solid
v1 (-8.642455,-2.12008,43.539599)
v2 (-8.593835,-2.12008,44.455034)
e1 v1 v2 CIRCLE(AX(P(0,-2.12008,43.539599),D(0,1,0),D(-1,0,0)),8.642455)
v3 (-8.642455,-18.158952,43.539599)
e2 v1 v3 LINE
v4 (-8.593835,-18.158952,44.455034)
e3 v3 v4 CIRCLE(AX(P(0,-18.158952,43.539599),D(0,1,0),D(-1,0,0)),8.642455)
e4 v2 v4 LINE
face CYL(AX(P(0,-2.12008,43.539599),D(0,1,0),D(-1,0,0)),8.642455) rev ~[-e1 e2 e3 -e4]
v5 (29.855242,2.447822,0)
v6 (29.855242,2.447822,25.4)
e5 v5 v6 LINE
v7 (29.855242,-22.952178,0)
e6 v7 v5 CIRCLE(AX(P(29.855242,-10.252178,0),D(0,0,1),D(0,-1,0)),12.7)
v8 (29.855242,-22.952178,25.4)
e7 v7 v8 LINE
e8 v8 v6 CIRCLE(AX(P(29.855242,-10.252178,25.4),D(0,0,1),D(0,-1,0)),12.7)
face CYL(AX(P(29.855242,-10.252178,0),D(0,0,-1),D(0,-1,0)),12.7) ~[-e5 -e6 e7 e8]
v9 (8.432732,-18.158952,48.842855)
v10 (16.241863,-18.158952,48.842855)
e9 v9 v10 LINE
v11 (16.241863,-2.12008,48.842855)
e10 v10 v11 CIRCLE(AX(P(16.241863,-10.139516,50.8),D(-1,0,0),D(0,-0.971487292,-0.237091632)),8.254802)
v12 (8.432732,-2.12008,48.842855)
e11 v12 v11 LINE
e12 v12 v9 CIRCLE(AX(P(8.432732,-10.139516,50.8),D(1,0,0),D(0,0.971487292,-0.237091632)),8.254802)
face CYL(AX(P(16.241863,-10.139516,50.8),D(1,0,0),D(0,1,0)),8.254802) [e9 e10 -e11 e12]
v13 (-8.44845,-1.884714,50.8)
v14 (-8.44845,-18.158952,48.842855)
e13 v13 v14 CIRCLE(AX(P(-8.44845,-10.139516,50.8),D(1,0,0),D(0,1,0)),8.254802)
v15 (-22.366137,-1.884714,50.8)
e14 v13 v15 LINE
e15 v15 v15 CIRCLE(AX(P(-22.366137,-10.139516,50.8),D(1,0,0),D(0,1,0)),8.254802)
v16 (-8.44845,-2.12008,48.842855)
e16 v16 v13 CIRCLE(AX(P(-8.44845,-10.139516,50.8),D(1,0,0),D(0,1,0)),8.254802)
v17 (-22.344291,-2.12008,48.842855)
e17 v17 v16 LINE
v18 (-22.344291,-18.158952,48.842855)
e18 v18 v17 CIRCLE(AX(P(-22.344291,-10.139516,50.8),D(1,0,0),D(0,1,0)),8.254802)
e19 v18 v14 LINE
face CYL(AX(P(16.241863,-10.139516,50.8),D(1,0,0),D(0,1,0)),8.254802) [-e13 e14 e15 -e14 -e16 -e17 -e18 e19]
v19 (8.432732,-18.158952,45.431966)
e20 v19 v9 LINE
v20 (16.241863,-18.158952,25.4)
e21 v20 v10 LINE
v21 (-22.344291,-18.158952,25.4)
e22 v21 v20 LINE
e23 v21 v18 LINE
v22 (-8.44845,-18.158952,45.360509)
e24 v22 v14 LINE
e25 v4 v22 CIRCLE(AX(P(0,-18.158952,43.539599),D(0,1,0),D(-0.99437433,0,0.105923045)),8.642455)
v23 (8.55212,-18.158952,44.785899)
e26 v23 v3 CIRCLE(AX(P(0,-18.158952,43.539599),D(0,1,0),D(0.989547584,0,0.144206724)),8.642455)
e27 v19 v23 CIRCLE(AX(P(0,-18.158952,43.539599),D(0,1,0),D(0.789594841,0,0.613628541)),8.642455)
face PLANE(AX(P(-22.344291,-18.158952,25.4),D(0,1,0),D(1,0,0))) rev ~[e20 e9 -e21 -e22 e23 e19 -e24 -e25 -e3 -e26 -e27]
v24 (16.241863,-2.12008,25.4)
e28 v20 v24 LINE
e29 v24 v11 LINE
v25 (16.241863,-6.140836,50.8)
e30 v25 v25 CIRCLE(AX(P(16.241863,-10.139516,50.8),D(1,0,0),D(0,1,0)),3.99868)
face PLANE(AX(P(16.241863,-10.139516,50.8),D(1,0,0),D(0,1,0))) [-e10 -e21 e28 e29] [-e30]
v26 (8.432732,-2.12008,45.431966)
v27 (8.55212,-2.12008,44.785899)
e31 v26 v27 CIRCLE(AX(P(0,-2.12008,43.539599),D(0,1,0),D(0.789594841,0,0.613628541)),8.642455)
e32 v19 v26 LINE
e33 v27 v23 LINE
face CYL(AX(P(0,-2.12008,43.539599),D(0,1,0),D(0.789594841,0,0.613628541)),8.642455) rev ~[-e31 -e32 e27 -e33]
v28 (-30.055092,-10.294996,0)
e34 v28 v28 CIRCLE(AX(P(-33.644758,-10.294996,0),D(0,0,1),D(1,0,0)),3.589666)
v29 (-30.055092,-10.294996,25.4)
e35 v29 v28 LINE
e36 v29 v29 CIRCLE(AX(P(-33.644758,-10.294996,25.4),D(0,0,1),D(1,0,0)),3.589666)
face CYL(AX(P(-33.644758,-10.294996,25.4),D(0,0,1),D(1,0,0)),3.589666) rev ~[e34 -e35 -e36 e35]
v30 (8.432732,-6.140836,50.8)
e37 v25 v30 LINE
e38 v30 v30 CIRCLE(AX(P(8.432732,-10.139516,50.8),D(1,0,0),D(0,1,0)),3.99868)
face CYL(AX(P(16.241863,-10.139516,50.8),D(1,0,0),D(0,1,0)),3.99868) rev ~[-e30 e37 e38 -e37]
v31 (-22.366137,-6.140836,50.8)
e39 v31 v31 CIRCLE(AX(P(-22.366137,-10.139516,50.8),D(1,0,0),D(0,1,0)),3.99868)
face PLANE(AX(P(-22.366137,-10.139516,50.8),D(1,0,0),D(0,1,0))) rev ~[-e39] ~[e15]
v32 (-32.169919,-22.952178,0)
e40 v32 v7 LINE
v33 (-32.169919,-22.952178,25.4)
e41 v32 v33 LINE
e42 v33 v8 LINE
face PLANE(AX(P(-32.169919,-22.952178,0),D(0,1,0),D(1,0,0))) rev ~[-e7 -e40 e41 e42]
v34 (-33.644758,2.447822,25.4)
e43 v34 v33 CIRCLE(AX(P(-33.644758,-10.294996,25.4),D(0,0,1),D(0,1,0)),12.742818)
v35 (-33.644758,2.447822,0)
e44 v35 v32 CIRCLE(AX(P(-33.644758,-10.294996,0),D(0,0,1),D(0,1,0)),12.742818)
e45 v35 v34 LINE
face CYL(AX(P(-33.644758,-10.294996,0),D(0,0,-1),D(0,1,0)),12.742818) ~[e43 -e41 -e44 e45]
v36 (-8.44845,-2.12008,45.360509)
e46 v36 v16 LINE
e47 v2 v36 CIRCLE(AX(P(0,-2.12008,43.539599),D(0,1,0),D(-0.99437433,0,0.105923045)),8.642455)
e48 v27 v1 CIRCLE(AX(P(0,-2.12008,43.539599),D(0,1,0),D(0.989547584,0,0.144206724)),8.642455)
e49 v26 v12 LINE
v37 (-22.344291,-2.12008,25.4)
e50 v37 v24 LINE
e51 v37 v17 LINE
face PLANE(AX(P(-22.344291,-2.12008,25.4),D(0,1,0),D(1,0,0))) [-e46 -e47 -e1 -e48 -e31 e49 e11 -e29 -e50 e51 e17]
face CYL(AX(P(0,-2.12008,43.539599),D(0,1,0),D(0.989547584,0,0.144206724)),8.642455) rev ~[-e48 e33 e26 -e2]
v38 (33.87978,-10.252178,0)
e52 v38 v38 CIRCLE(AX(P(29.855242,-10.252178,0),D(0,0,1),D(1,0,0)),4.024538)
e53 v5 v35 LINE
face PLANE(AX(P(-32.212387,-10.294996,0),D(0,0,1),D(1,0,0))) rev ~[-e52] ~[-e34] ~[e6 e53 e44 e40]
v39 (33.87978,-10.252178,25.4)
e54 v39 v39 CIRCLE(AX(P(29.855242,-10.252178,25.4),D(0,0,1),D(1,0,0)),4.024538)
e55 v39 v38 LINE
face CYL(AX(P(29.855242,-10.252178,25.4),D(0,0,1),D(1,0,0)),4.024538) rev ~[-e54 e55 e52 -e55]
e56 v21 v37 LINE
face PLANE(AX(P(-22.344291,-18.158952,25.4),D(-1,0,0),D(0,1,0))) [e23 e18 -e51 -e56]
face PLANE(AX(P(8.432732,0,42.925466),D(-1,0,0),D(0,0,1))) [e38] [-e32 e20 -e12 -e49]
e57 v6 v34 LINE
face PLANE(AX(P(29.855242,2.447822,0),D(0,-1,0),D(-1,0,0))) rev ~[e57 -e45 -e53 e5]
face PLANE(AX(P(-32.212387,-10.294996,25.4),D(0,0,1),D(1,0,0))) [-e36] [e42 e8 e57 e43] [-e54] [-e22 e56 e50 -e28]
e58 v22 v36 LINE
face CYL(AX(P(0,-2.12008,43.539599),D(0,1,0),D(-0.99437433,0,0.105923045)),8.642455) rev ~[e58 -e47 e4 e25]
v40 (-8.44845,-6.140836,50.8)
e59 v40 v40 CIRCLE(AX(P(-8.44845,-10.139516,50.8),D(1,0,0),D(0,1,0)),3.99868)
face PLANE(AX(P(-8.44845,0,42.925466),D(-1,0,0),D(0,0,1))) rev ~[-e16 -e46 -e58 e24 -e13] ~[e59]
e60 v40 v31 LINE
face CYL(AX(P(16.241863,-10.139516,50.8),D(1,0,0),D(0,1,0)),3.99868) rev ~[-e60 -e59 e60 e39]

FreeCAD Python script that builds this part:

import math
import FreeCAD as App
import Part
import Sketcher

V = App.Vector
Q = App.Units.Quantity


def add_polygon(sketch, points):
    """Adds a closed chain of lines whose ends are joined by coincident constraints."""
    first, n = sketch.GeometryCount, len(points)
    for a, b in zip(points, points[1:] + points[:1]):
        sketch.addGeometry(Part.LineSegment(App.Vector(*a, 0), App.Vector(*b, 0)), False)
    for i in range(n):
        sketch.addConstraint(Sketcher.Constraint("Coincident", first + i, 2, first + (i + 1) % n, 1))

doc = App.newDocument("Part")
body = doc.addObject("PartDesign::Body", "Body")

# Sketch on XY plane
sketch1 = body.newObject("Sketcher::SketchObject", "Sketch")
sketch1.AttachmentSupport = (doc.getObject("XY_Plane"), [""])
sketch1.MapMode = "FlatFace"
sketch1.addGeometry(Part.LineSegment(V(-32.169919, -22.952178, 0), V(29.855242, -22.952178, 0)), False)
sketch1.addGeometry(Part.ArcOfCircle(Part.Circle(V(29.855242, -10.252178, 0), V(0, 0, 1), 12.7), math.radians(-90), math.radians(90)), False)
sketch1.addGeometry(Part.LineSegment(V(29.855242, 2.447822, 0), V(-33.644758, 2.447822, 0)), False)
sketch1.addGeometry(Part.ArcOfCircle(Part.Circle(V(-33.644758, -10.294996, 0), V(0, 0, 1), 12.742818), math.radians(90), math.radians(276.646241)), False)
sketch1.addConstraint(Sketcher.Constraint("Tangent", 0, 2, 1, 1))
sketch1.addConstraint(Sketcher.Constraint("Tangent", 1, 2, 2, 1))
sketch1.addConstraint(Sketcher.Constraint("Tangent", 2, 2, 3, 1))
sketch1.addConstraint(Sketcher.Constraint("Coincident", 3, 2, 0, 1))
sketch1.addConstraint(Sketcher.Constraint("Horizontal", 0))
sketch1.addConstraint(Sketcher.Constraint("Horizontal", 2))
sketch1.addConstraint(Sketcher.Constraint("Radius", 1, Q("0.5 in")))
sketch1.addConstraint(Sketcher.Constraint("DistanceX", 2, 2, 2, 1, Q("2.5 in")))
sketch1.addConstraint(Sketcher.Constraint("Radius", 3, 12.742818))
sketch1.addConstraint(Sketcher.Constraint("DistanceX", -1, 1, 1, 3, 29.855242))
sketch1.addConstraint(Sketcher.Constraint("DistanceY", 1, 3, -1, 1, 10.252178))
pad1 = body.newObject("PartDesign::Pad", "Pad")
pad1.Profile = sketch1
pad1.Length = Q("1 in")

# Sketch on XY plane
sketch2 = body.newObject("Sketcher::SketchObject", "Sketch001")
sketch2.AttachmentSupport = (doc.getObject("XY_Plane"), [""])
sketch2.MapMode = "FlatFace"
sketch2.AttachmentOffset = App.Placement(V(0, 0, 1 * 25.4), App.Rotation())
sketch2.addGeometry(Part.Circle(V(29.855242, -10.252178, 0), V(0, 0, 1), 4.024538), False)
sketch2.addGeometry(Part.Circle(V(-33.644758, -10.294996, 0), V(0, 0, 1), 3.589666), False)
sketch2.addConstraint(Sketcher.Constraint("DistanceX", 1, 3, 0, 3, Q("2.5 in")))
sketch2.addConstraint(Sketcher.Constraint("Diameter", 1, 7.179331))
sketch2.addConstraint(Sketcher.Constraint("Diameter", 0, 8.049077))
sketch2.addConstraint(Sketcher.Constraint("DistanceX", -1, 1, 0, 3, 29.855242))
sketch2.addConstraint(Sketcher.Constraint("DistanceY", 0, 3, -1, 1, 10.252178))
sketch2.addConstraint(Sketcher.Constraint("DistanceY", 1, 3, -1, 1, 10.294996))
pocket1 = body.newObject("PartDesign::Pocket", "Pocket")
pocket1.Profile = sketch2
pocket1.Length = Q("1 in")

# Sketch on XY plane
sketch3 = body.newObject("Sketcher::SketchObject", "Sketch002")
sketch3.AttachmentSupport = (doc.getObject("XY_Plane"), [""])
sketch3.MapMode = "FlatFace"
sketch3.AttachmentOffset = App.Placement(V(0, 0, 1 * 25.4), App.Rotation())
add_polygon(sketch3, [(-22.344291, -2.12008), (-22.344291, -18.158952), (16.241863, -18.158952), (16.241863, -2.12008)])  # lines 0-3
sketch3.addConstraint(Sketcher.Constraint("Vertical", 0))
sketch3.addConstraint(Sketcher.Constraint("Horizontal", 1))
sketch3.addConstraint(Sketcher.Constraint("Vertical", 2))
sketch3.addConstraint(Sketcher.Constraint("Horizontal", 3))
sketch3.addConstraint(Sketcher.Constraint("DistanceY", 0, 2, 0, 1, 16.038871))
sketch3.addConstraint(Sketcher.Constraint("DistanceX", 1, 1, 1, 2, 38.586155))
sketch3.addConstraint(Sketcher.Constraint("DistanceX", 0, 2, -1, 1, 22.344291))
sketch3.addConstraint(Sketcher.Constraint("DistanceY", 0, 2, -1, 1, 18.158952))
pad2 = body.newObject("PartDesign::Pad", "Pad001")
pad2.Profile = sketch3
pad2.Length = Q("1 in")

# Sketch on YZ plane
sketch4 = body.newObject("Sketcher::SketchObject", "Sketch003")
sketch4.AttachmentSupport = (doc.getObject("YZ_Plane"), [""])
sketch4.MapMode = "FlatFace"
sketch4.AttachmentOffset = App.Placement(V(0, 0, 16.241863), App.Rotation())
sketch4.addGeometry(Part.Circle(V(-10.139516, 50.8, 0), V(0, 0, 1), 8.254802), False)
sketch4.addConstraint(Sketcher.Constraint("DistanceY", -1, 1, 0, 3, Q("2 in")))
sketch4.addConstraint(Sketcher.Constraint("Diameter", 0, 16.509605))
sketch4.addConstraint(Sketcher.Constraint("DistanceX", 0, 3, -1, 1, 10.139516))
pad3 = body.newObject("PartDesign::Pad", "Pad002")
pad3.Profile = sketch4
pad3.Length = Q("1.52 in")
pad3.Reversed = True

# Sketch on YZ plane
sketch5 = body.newObject("Sketcher::SketchObject", "Sketch004")
sketch5.AttachmentSupport = (doc.getObject("YZ_Plane"), [""])
sketch5.MapMode = "FlatFace"
sketch5.AttachmentOffset = App.Placement(V(0, 0, 16.241863), App.Rotation())
sketch5.addGeometry(Part.Circle(V(-10.139516, 50.8, 0), V(0, 0, 1), 3.99868), False)
sketch5.addConstraint(Sketcher.Constraint("DistanceY", -1, 1, 0, 3, Q("2 in")))
sketch5.addConstraint(Sketcher.Constraint("Diameter", 0, 7.997359))
sketch5.addConstraint(Sketcher.Constraint("DistanceX", 0, 3, -1, 1, 10.139516))
pocket2 = body.newObject("PartDesign::Pocket", "Pocket001")
pocket2.Profile = sketch5
pocket2.Length = Q("1.57 in")

# Sketch on XZ plane
sketch6 = body.newObject("Sketcher::SketchObject", "Sketch005")
sketch6.AttachmentSupport = (doc.getObject("XZ_Plane"), [""])
sketch6.MapMode = "FlatFace"
sketch6.AttachmentOffset = App.Placement(V(0, 0, 2.12008), App.Rotation())
sketch6.addGeometry(Part.ArcOfCircle(Part.Circle(V(0, 43.539599, 0), V(0, 0, 1), 8.642455), math.radians(37.852335), math.radians(142.147665)), False)
sketch6.addGeometry(Part.ArcOfCircle(Part.Circle(V(0, 43.539599, 0), V(0, 0, 1), 8.642455), math.radians(8.291345), math.radians(37.852335)), False)
sketch6.addGeometry(Part.ArcOfCircle(Part.Circle(V(0, 43.539599, 0), V(0, 0, 1), 8.642455), math.radians(180), math.radians(368.291345)), False)
sketch6.addGeometry(Part.ArcOfCircle(Part.Circle(V(0, 43.539599, 0), V(0, 0, 1), 8.642455), math.radians(173.91965), math.radians(180)), False)
sketch6.addGeometry(Part.ArcOfCircle(Part.Circle(V(0, 43.539599, 0), V(0, 0, 1), 8.642455), math.radians(142.147665), math.radians(173.91965)), False)
sketch6.addConstraint(Sketcher.Constraint("Tangent", 0, 1, 1, 2))
sketch6.addConstraint(Sketcher.Constraint("Tangent", 1, 1, 2, 2))
sketch6.addConstraint(Sketcher.Constraint("Tangent", 2, 1, 3, 2))
sketch6.addConstraint(Sketcher.Constraint("Tangent", 3, 1, 4, 2))
sketch6.addConstraint(Sketcher.Constraint("Tangent", 4, 1, 0, 2))
sketch6.addConstraint(Sketcher.Constraint("Coincident", 2, 3, 0, 3))
sketch6.addConstraint(Sketcher.Constraint("Symmetric", 0, 1, 4, 1, -2))
sketch6.addConstraint(Sketcher.Constraint("Horizontal", 4, 3, 2, 1))
sketch6.addConstraint(Sketcher.Constraint("Radius", 0, 8.642455))
sketch6.addConstraint(Sketcher.Constraint("DistanceY", -1, 1, 0, 3, 43.539599))
sketch6.addConstraint(Sketcher.Constraint("DistanceY", -1, 1, 1, 1, 44.785899))
sketch6.addConstraint(Sketcher.Constraint("DistanceX", 2, 1, 3, 1, 0.04862))
sketch6.addConstraint(Sketcher.Constraint("DistanceY", 3, 1, 4, 1, 4.387822))
pocket3 = body.newObject("PartDesign::Pocket", "Pocket002")
pocket3.Profile = sketch6
pocket3.Length = Q("1.78 in")
pocket3.Reversed = True

# Sketch on XZ plane
sketch7 = body.newObject("Sketcher::SketchObject", "Sketch006")
sketch7.AttachmentSupport = (doc.getObject("XZ_Plane"), [""])
sketch7.MapMode = "FlatFace"
add_polygon(sketch7, [(-8.44845, 63.115381), (-8.44845, 42.925466), (8.432732, 42.925466), (8.432732, 63.115381)])  # lines 0-3
sketch7.addConstraint(Sketcher.Constraint("Vertical", 0))
sketch7.addConstraint(Sketcher.Constraint("Horizontal", 1))
sketch7.addConstraint(Sketcher.Constraint("Vertical", 2))
sketch7.addConstraint(Sketcher.Constraint("Horizontal", 3))
sketch7.addConstraint(Sketcher.Constraint("DistanceX", 1, 1, 1, 2, 16.881182))
sketch7.addConstraint(Sketcher.Constraint("DistanceY", 0, 2, 0, 1, 20.189915))
sketch7.addConstraint(Sketcher.Constraint("DistanceX", 0, 2, -1, 1, 8.44845))
sketch7.addConstraint(Sketcher.Constraint("DistanceY", -1, 1, 2, 2, 63.115381))
pocket4 = body.newObject("PartDesign::Pocket", "Pocket003")
pocket4.Profile = sketch7
pocket4.Length = Q("1.35 in")
pocket4.Reversed = True

doc.recompute()
